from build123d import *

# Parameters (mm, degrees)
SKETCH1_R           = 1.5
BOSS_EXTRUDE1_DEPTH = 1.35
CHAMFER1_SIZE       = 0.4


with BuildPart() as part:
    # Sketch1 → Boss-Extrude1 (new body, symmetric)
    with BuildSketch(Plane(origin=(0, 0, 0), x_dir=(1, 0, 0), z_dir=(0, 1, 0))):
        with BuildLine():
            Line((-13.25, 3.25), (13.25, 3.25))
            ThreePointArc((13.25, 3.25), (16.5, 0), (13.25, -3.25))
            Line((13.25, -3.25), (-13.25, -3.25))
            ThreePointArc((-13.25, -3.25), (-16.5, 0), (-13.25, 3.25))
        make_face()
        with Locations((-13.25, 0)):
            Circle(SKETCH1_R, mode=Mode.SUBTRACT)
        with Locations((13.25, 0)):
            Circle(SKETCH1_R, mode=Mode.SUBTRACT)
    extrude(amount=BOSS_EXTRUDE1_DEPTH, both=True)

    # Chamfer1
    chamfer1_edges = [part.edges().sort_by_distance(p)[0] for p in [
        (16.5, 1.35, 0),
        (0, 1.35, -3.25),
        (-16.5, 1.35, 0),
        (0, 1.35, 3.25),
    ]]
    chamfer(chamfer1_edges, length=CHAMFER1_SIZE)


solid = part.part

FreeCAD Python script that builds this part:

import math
import FreeCAD as App
import Part
import Sketcher

V = App.Vector
Q = App.Units.Quantity


def edges_at(feature, points):
    """Names of the edges that pass closest to the given points."""
    edges = feature.Shape.Edges
    near = lambda p: min(range(len(edges)), key=lambda i: edges[i].distToShape(Part.Vertex(*p))[0])
    return sorted({f"Edge{near(p) + 1}" for p in points})

doc = App.newDocument("Part")
body = doc.addObject("PartDesign::Body", "Body")

sketch1 = body.newObject("Sketcher::SketchObject", "Sketch")
sketch1.AttachmentSupport = (doc.getObject("XZ_Plane"), [""])
sketch1.MapMode = "FlatFace"
sketch1.addGeometry([
    Part.LineSegment(V(13.2, -3.2, 0), V(-13.2, -3.2, 0)),
    Part.ArcOfCircle(Part.Circle(V(-13.2, 0, 0), V(0, 0, 1), 3.2), math.radians(90), math.radians(270)),
    Part.LineSegment(V(-13.2, 3.2, 0), V(13.2, 3.2, 0)),
    Part.ArcOfCircle(Part.Circle(V(13.2, 0, 0), V(0, 0, 1), 3.2), math.radians(-90), math.radians(90)),
    Part.Circle(V(13.2, 0, 0), V(0, 0, 1), 1.5),
    Part.Circle(V(-13.2, 0, 0), V(0, 0, 1), 1.5),
], False)
sketch1.addConstraint([
    Sketcher.Constraint("Tangent", 0, 2, 1, 2),
    Sketcher.Constraint("Tangent", 1, 1, 2, 1),
    Sketcher.Constraint("Tangent", 2, 2, 3, 2),
    Sketcher.Constraint("Tangent", 3, 1, 0, 1),
    Sketcher.Constraint("Horizontal", 0),
    Sketcher.Constraint("Horizontal", 2),
    Sketcher.Constraint("Coincident", 4, 3, 3, 3),
    Sketcher.Constraint("Coincident", 5, 3, 1, 3),
    Sketcher.Constraint("Equal", 4, 5),
    Sketcher.Constraint("Symmetric", 1, 3, 3, 3, -1, 1),
    Sketcher.Constraint("Diameter", 4, Q("3 mm")),
    Sketcher.Constraint("Radius", 1, Q("3.25 mm")),
    Sketcher.Constraint("DistanceX", 0, 2, 0, 1, Q("26.5 mm")),
])
pad1 = body.newObject("PartDesign::Pad", "Pad")
pad1.Profile = sketch1
pad1.Length = 2.7
pad1.Midplane = True
doc.recompute()

chamfer = body.newObject("PartDesign::Chamfer", "Chamfer")
chamfer.Base = (pad1, edges_at(pad1, [
    (16.5, 1.35, 0),
    (0, 1.35, -3.25),
    (-16.5, 1.35, 0),
    (0, 1.35, 3.25),
]))
chamfer.Size = 0.4

doc.recompute()
